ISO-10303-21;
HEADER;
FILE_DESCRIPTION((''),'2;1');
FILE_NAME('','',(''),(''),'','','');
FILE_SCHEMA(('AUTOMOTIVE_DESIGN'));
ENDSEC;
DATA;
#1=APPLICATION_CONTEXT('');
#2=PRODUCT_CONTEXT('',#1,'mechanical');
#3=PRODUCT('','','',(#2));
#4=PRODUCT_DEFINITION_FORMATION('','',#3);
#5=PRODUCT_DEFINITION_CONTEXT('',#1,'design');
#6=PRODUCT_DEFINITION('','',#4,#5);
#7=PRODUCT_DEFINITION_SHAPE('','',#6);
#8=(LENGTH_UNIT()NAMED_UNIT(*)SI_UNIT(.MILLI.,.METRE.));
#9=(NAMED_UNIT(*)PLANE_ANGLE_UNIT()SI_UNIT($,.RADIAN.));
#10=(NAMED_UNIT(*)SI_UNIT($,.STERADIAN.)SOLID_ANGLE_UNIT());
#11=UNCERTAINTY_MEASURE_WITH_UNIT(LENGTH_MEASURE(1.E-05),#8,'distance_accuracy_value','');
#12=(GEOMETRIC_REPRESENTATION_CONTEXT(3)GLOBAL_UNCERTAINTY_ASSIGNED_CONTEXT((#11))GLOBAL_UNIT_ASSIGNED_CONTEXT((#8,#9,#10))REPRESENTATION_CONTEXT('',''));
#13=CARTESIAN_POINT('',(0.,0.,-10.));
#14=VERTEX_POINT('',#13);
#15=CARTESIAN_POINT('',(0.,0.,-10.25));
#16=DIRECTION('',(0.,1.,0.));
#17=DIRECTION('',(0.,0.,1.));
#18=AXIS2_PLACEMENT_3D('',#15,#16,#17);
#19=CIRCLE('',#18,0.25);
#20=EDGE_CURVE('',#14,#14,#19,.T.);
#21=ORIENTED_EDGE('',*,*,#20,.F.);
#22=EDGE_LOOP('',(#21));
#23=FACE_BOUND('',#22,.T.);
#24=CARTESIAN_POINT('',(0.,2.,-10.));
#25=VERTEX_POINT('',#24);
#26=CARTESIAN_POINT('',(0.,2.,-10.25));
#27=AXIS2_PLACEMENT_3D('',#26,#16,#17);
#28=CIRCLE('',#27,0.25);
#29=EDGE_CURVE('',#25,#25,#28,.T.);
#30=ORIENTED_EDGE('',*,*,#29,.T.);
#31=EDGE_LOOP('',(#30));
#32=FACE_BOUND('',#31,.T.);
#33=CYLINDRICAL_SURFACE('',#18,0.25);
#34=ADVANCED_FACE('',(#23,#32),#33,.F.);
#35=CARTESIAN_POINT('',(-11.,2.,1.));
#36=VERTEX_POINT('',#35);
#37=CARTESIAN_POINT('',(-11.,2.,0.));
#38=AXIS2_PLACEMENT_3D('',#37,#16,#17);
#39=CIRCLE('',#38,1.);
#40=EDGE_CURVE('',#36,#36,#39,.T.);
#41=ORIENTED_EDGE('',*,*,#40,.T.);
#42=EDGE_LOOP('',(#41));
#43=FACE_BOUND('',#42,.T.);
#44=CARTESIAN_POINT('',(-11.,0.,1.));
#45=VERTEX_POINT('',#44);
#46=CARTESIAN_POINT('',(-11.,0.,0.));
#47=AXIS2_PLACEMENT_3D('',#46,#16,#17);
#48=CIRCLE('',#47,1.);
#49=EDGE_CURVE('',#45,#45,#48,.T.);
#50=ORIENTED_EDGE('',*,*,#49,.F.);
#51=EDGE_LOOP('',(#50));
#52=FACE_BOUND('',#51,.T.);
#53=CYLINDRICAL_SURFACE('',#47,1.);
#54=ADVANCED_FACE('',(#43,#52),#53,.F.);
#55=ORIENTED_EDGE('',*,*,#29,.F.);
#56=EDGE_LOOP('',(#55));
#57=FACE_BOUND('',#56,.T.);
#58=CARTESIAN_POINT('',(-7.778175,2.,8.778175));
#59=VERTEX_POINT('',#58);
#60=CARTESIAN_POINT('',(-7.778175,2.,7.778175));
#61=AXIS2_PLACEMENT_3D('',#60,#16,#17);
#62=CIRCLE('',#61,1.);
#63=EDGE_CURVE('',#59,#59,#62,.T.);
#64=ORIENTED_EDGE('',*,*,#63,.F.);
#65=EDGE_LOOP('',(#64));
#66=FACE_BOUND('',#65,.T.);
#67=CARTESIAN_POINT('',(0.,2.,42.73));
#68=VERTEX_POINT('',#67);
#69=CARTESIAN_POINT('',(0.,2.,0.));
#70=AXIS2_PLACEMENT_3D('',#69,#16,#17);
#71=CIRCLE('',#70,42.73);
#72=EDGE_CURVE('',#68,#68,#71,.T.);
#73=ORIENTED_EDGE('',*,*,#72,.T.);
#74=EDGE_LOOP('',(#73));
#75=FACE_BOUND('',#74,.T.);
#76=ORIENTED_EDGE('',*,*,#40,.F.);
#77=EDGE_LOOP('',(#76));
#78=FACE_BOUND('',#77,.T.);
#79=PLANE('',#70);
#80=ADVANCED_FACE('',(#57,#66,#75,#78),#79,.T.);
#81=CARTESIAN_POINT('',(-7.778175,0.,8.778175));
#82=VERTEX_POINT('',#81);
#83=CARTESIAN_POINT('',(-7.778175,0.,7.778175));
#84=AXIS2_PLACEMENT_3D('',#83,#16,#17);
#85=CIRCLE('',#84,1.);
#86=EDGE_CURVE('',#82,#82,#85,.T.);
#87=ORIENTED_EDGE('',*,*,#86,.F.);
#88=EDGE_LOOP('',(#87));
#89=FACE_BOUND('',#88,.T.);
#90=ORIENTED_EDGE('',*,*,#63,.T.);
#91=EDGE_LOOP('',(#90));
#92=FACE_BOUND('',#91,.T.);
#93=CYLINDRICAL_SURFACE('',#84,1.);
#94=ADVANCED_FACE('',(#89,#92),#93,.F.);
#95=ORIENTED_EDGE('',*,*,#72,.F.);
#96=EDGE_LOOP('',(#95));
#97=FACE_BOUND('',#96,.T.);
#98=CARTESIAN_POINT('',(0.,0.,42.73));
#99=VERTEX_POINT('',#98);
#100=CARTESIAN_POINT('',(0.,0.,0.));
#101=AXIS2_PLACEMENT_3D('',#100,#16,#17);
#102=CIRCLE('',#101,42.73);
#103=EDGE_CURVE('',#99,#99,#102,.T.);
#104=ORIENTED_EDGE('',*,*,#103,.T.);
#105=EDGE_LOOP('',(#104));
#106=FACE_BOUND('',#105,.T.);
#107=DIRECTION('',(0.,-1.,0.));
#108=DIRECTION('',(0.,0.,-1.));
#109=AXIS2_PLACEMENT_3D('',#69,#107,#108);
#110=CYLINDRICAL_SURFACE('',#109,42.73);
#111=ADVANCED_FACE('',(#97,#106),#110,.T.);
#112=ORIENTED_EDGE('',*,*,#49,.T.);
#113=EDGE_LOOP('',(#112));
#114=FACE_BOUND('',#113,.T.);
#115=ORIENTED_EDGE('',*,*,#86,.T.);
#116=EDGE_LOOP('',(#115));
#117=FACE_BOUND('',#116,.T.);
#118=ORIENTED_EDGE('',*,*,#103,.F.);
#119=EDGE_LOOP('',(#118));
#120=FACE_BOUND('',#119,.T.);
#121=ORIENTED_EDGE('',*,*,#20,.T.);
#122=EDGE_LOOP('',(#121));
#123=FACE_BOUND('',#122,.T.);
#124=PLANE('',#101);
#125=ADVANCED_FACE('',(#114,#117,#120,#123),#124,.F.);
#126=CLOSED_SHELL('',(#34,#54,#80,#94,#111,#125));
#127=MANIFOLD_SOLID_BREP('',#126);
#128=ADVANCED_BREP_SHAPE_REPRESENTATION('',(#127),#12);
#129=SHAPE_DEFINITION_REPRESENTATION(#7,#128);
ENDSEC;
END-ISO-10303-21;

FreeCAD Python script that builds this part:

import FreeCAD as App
import Part
import Sketcher

V = App.Vector

doc = App.newDocument("Part")
body = doc.addObject("PartDesign::Body", "Body")

# Sketch on XZ plane
sketch1 = body.newObject("Sketcher::SketchObject", "Sketch")
sketch1.AttachmentSupport = (doc.getObject("XZ_Plane"), [""])
sketch1.MapMode = "FlatFace"
sketch1.addGeometry(Part.Circle(V(0, 0, 0), V(0, 0, 1), 43), False)
sketch1.addConstraint([
    Sketcher.Constraint("Coincident", 0, 3, -1, 1),
    Sketcher.Constraint("Diameter", 0, 85.46),
])
pad1 = body.newObject("PartDesign::Pad", "Pad")
pad1.Profile = sketch1
pad1.Length = 2
pad1.Reversed = True

# Sketch on XZ plane
sketch2 = body.newObject("Sketcher::SketchObject", "Sketch001")
sketch2.AttachmentSupport = (doc.getObject("XZ_Plane"), [""])
sketch2.MapMode = "FlatFace"
sketch2.AttachmentOffset = App.Placement(V(0, 0, -2), App.Rotation())
sketch2.addGeometry(Part.Circle(V(0, -10.25, 0), V(0, 0, 1), 0.25), False)
sketch2.addConstraint([
    Sketcher.Constraint("PointOnObject", 0, 3, -2),
    Sketcher.Constraint("Diameter", 0, 0.5),
    Sketcher.Constraint("DistanceY", 0, 3, -1, 1, 10.25),
])
pocket1 = body.newObject("PartDesign::Pocket", "Pocket")
pocket1.Profile = sketch2
pocket1.Type = "ThroughAll"
pocket1.Midplane = True

# Sketch on XZ plane
sketch3 = body.newObject("Sketcher::SketchObject", "Sketch002")
sketch3.AttachmentSupport = (doc.getObject("XZ_Plane"), [""])
sketch3.MapMode = "FlatFace"
sketch3.AttachmentOffset = App.Placement(V(0, 0, -2), App.Rotation())
sketch3.addGeometry([
    Part.Circle(V(-11, 0, 0), V(0, 0, 1), 1),
    Part.Circle(V(-7.8, 7.8, 0), V(0, 0, 1), 1),
], False)
sketch3.addConstraint([
    Sketcher.Constraint("Equal", 0, 1),
    Sketcher.Constraint("PointOnObject", 0, 3, -1),
    Sketcher.Constraint("Diameter", 0, 2.0),
    Sketcher.Constraint("DistanceX", 0, 3, -1, 1, 11.0),
    Sketcher.Constraint("DistanceX", 1, 3, -1, 1, 7.778175),
    Sketcher.Constraint("DistanceY", -1, 1, 1, 3, 7.778175),
])
pocket2 = body.newObject("PartDesign::Pocket", "Pocket001")
pocket2.Profile = sketch3
pocket2.Type = "ThroughAll"
pocket2.Midplane = True

doc.recompute()
